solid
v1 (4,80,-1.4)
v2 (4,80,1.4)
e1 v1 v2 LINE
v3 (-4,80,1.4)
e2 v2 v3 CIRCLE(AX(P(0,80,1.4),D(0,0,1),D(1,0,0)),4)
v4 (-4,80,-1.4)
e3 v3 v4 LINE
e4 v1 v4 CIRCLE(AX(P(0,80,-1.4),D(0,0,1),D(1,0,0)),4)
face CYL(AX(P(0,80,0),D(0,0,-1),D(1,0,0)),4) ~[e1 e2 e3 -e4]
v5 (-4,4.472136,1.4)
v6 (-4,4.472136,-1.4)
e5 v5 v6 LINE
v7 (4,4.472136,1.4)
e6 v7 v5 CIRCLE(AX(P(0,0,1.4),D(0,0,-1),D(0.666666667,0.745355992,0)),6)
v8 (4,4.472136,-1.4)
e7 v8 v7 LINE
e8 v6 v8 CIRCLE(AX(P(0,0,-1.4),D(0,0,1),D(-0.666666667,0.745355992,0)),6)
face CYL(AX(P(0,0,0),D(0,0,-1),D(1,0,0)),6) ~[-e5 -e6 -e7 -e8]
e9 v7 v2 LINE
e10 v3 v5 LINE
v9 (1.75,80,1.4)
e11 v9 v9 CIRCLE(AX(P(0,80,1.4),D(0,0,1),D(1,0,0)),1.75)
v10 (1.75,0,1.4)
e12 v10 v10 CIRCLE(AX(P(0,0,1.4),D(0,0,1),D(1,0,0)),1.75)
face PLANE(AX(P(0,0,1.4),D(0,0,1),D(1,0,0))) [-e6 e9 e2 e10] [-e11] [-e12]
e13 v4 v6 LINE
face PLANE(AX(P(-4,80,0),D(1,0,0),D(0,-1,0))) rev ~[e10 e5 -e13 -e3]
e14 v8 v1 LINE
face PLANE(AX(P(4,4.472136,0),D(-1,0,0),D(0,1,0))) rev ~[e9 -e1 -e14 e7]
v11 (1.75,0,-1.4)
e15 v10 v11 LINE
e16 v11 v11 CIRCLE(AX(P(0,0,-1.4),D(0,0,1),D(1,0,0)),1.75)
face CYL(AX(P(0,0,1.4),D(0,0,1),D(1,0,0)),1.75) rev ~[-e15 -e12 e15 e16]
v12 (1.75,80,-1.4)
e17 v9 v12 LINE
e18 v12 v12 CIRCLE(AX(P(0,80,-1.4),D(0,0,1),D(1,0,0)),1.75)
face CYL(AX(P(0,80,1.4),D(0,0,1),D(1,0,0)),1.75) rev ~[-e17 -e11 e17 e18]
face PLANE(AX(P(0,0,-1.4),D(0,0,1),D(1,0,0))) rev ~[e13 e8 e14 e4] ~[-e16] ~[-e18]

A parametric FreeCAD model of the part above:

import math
import FreeCAD as App
import Part
import Sketcher
from FreeCAD import Vector
Q = App.Units.Quantity

doc = App.newDocument("Part")
body = doc.addObject("PartDesign::Body", "Body")

# Sketch on XY plane
sketch1 = doc.addObject("Sketcher::SketchObject", "Sketch")
body.addObject(sketch1)
sketch1.AttachmentSupport = (doc.XY_Plane, [""])
sketch1.MapMode = "FlatFace"
sketch1.addGeometry(Part.LineSegment(Vector(4, 4.5, 0), Vector(4, 80, 0)), False)
sketch1.addGeometry(Part.ArcOfCircle(Part.Circle(Vector(0, 80, 0), Vector(0, 0, 1), 4), math.radians(0), math.radians(180)), False)
sketch1.addGeometry(Part.LineSegment(Vector(-4, 80, 0), Vector(-4, 4.5, 0)), False)
sketch1.addGeometry(Part.ArcOfCircle(Part.Circle(Vector(0, 0, 0), Vector(0, 0, 1), 6), math.radians(132), math.radians(408)), False)
sketch1.addConstraint(Sketcher.Constraint("Tangent", 0, 2, 1, 1))
sketch1.addConstraint(Sketcher.Constraint("Tangent", 1, 2, 2, 1))
sketch1.addConstraint(Sketcher.Constraint("Coincident", 2, 2, 3, 1))
sketch1.addConstraint(Sketcher.Constraint("Coincident", 3, 2, 0, 1))
sketch1.addConstraint(Sketcher.Constraint("Vertical", 0))
sketch1.addConstraint(Sketcher.Constraint("Vertical", 2))
sketch1.addConstraint(Sketcher.Constraint("Coincident", 3, 3, -1, 1))
sketch1.addConstraint(Sketcher.Constraint("PointOnObject", 1, 3, -2))
sketch1.addConstraint(Sketcher.Constraint("Radius", 1, Q("4 mm")))
sketch1.addConstraint(Sketcher.Constraint("Radius", 3, Q("6 mm")))
sketch1.addConstraint(Sketcher.Constraint("DistanceY", -1, 1, 1, 3, Q("80 mm")))
pad1 = doc.addObject("PartDesign::Pad", "Pad")
body.addObject(pad1)
pad1.Profile = sketch1
pad1.Length = 2.8
pad1.Midplane = True

# Sketch on XY plane
sketch2 = doc.addObject("Sketcher::SketchObject", "Sketch001")
body.addObject(sketch2)
sketch2.AttachmentSupport = (doc.XY_Plane, [""])
sketch2.MapMode = "FlatFace"
sketch2.AttachmentOffset = App.Placement(Vector(0, 0, 1.4), App.Rotation())
sketch2.addGeometry(Part.Circle(Vector(0, 0, 0), Vector(0, 0, 1), 1.8), False)
sketch2.addGeometry(Part.Circle(Vector(0, 80, 0), Vector(0, 0, 1), 1.8), False)
sketch2.addConstraint(Sketcher.Constraint("Coincident", 0, 3, -1, 1))
sketch2.addConstraint(Sketcher.Constraint("Equal", 0, 1))
sketch2.addConstraint(Sketcher.Constraint("PointOnObject", 1, 3, -2))
sketch2.addConstraint(Sketcher.Constraint("Diameter", 0, Q("3.5 mm")))
sketch2.addConstraint(Sketcher.Constraint("DistanceY", -1, 1, 1, 3, Q("80 mm")))
pocket1 = doc.addObject("PartDesign::Pocket", "Pocket")
body.addObject(pocket1)
pocket1.Profile = sketch2
pocket1.Type = "ThroughAll"

doc.recompute()
